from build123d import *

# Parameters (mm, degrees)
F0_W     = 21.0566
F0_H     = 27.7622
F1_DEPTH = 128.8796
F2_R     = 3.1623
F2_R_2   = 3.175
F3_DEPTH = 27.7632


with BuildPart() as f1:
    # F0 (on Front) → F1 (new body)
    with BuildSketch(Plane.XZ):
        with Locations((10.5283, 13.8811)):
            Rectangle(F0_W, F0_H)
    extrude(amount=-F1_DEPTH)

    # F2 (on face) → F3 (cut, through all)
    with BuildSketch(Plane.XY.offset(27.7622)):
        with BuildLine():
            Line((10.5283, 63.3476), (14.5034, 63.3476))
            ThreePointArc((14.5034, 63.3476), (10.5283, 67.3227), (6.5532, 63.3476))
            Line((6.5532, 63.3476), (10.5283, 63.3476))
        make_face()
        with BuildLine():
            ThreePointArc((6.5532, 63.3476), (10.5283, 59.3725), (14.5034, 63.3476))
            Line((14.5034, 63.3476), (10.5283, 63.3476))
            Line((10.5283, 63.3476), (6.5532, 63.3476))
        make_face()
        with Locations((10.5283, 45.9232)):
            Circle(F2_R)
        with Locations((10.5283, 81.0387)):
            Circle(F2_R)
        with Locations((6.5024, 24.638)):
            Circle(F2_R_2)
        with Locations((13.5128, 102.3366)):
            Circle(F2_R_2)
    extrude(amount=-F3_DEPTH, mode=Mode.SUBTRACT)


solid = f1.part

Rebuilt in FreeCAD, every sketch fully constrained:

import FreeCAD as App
import Part
import Sketcher

V = App.Vector
Q = App.Units.Quantity


def add_polygon(sketch, points):
    """Adds a closed chain of lines whose ends are joined by coincident constraints."""
    first, n = sketch.GeometryCount, len(points)
    for a, b in zip(points, points[1:] + points[:1]):
        sketch.addGeometry(Part.LineSegment(App.Vector(*a, 0), App.Vector(*b, 0)), False)
    for i in range(n):
        sketch.addConstraint(Sketcher.Constraint("Coincident", first + i, 2, first + (i + 1) % n, 1))

doc = App.newDocument("Part")
body = doc.addObject("PartDesign::Body", "Body")

# Sketch on XZ plane
sketch1 = body.newObject("Sketcher::SketchObject", "Sketch")
sketch1.AttachmentSupport = (doc.getObject("XZ_Plane"), [""])
sketch1.MapMode = "FlatFace"
add_polygon(sketch1, [(0, 28), (0, 0), (21, 0), (21, 28)])  # lines 0-3
sketch1.addConstraint(Sketcher.Constraint("Vertical", 0))
sketch1.addConstraint(Sketcher.Constraint("Horizontal", 1))
sketch1.addConstraint(Sketcher.Constraint("Vertical", 2))
sketch1.addConstraint(Sketcher.Constraint("Horizontal", 3))
sketch1.addConstraint(Sketcher.Constraint("Coincident", 0, 2, -1, 1))
sketch1.addConstraint(Sketcher.Constraint("DistanceX", 1, 1, 1, 2, Q("0.829 in")))
sketch1.addConstraint(Sketcher.Constraint("DistanceY", 0, 2, 0, 1, Q("1.093 in")))
pad1 = body.newObject("PartDesign::Pad", "Pad")
pad1.Profile = sketch1
pad1.Length = Q("5.074 in")
pad1.Reversed = True

# Sketch on XY plane
sketch2 = body.newObject("Sketcher::SketchObject", "Sketch001")
sketch2.AttachmentSupport = (doc.getObject("XY_Plane"), [""])
sketch2.MapMode = "FlatFace"
sketch2.AttachmentOffset = App.Placement(V(0, 0, 1.093 * 25.4), App.Rotation())
sketch2.addGeometry(Part.Circle(V(10.5, 63.3, 0), V(0, 0, 1), 4), False)
sketch2.addGeometry(Part.Circle(V(10.5, 45.9, 0), V(0, 0, 1), 3.2), False)
sketch2.addGeometry(Part.Circle(V(10.5, 81, 0), V(0, 0, 1), 3.2), False)
sketch2.addGeometry(Part.Circle(V(6.5, 24.6, 0), V(0, 0, 1), 3.2), False)
sketch2.addGeometry(Part.Circle(V(13.5, 102.3, 0), V(0, 0, 1), 3.2), False)
sketch2.addConstraint(Sketcher.Constraint("Equal", 1, 2))
sketch2.addConstraint(Sketcher.Constraint("Equal", 3, 4))
sketch2.addConstraint(Sketcher.Constraint("Vertical", 0, 3, 1, 3))
sketch2.addConstraint(Sketcher.Constraint("Vertical", 1, 3, 2, 3))
sketch2.addConstraint(Sketcher.Constraint("Diameter", 3, Q("0.25 in")))
sketch2.addConstraint(Sketcher.Constraint("Diameter", 0, Q("0.313 in")))
sketch2.addConstraint(Sketcher.Constraint("Diameter", 1, Q("0.249 in")))
sketch2.addConstraint(Sketcher.Constraint("DistanceY", -1, 1, 3, 3, Q("0.97 in")))
sketch2.addConstraint(Sketcher.Constraint("DistanceY", -1, 1, 0, 3, Q("2.494 in")))
sketch2.addConstraint(Sketcher.Constraint("DistanceY", -1, 1, 1, 3, Q("1.808 in")))
sketch2.addConstraint(Sketcher.Constraint("DistanceX", -1, 1, 3, 3, Q("0.256 in")))
sketch2.addConstraint(Sketcher.Constraint("DistanceX", -1, 1, 4, 3, Q("0.532 in")))
sketch2.addConstraint(Sketcher.Constraint("DistanceY", -1, 1, 4, 3, Q("4.029 in")))
sketch2.addConstraint(Sketcher.Constraint("DistanceX", -1, 1, 0, 3, Q("0.4145 in")))
sketch2.addConstraint(Sketcher.Constraint("DistanceY", -1, 1, 2, 3, Q("3.1905 in")))
pocket1 = body.newObject("PartDesign::Pocket", "Pocket")
pocket1.Profile = sketch2
pocket1.Type = "ThroughAll"

doc.recompute()
